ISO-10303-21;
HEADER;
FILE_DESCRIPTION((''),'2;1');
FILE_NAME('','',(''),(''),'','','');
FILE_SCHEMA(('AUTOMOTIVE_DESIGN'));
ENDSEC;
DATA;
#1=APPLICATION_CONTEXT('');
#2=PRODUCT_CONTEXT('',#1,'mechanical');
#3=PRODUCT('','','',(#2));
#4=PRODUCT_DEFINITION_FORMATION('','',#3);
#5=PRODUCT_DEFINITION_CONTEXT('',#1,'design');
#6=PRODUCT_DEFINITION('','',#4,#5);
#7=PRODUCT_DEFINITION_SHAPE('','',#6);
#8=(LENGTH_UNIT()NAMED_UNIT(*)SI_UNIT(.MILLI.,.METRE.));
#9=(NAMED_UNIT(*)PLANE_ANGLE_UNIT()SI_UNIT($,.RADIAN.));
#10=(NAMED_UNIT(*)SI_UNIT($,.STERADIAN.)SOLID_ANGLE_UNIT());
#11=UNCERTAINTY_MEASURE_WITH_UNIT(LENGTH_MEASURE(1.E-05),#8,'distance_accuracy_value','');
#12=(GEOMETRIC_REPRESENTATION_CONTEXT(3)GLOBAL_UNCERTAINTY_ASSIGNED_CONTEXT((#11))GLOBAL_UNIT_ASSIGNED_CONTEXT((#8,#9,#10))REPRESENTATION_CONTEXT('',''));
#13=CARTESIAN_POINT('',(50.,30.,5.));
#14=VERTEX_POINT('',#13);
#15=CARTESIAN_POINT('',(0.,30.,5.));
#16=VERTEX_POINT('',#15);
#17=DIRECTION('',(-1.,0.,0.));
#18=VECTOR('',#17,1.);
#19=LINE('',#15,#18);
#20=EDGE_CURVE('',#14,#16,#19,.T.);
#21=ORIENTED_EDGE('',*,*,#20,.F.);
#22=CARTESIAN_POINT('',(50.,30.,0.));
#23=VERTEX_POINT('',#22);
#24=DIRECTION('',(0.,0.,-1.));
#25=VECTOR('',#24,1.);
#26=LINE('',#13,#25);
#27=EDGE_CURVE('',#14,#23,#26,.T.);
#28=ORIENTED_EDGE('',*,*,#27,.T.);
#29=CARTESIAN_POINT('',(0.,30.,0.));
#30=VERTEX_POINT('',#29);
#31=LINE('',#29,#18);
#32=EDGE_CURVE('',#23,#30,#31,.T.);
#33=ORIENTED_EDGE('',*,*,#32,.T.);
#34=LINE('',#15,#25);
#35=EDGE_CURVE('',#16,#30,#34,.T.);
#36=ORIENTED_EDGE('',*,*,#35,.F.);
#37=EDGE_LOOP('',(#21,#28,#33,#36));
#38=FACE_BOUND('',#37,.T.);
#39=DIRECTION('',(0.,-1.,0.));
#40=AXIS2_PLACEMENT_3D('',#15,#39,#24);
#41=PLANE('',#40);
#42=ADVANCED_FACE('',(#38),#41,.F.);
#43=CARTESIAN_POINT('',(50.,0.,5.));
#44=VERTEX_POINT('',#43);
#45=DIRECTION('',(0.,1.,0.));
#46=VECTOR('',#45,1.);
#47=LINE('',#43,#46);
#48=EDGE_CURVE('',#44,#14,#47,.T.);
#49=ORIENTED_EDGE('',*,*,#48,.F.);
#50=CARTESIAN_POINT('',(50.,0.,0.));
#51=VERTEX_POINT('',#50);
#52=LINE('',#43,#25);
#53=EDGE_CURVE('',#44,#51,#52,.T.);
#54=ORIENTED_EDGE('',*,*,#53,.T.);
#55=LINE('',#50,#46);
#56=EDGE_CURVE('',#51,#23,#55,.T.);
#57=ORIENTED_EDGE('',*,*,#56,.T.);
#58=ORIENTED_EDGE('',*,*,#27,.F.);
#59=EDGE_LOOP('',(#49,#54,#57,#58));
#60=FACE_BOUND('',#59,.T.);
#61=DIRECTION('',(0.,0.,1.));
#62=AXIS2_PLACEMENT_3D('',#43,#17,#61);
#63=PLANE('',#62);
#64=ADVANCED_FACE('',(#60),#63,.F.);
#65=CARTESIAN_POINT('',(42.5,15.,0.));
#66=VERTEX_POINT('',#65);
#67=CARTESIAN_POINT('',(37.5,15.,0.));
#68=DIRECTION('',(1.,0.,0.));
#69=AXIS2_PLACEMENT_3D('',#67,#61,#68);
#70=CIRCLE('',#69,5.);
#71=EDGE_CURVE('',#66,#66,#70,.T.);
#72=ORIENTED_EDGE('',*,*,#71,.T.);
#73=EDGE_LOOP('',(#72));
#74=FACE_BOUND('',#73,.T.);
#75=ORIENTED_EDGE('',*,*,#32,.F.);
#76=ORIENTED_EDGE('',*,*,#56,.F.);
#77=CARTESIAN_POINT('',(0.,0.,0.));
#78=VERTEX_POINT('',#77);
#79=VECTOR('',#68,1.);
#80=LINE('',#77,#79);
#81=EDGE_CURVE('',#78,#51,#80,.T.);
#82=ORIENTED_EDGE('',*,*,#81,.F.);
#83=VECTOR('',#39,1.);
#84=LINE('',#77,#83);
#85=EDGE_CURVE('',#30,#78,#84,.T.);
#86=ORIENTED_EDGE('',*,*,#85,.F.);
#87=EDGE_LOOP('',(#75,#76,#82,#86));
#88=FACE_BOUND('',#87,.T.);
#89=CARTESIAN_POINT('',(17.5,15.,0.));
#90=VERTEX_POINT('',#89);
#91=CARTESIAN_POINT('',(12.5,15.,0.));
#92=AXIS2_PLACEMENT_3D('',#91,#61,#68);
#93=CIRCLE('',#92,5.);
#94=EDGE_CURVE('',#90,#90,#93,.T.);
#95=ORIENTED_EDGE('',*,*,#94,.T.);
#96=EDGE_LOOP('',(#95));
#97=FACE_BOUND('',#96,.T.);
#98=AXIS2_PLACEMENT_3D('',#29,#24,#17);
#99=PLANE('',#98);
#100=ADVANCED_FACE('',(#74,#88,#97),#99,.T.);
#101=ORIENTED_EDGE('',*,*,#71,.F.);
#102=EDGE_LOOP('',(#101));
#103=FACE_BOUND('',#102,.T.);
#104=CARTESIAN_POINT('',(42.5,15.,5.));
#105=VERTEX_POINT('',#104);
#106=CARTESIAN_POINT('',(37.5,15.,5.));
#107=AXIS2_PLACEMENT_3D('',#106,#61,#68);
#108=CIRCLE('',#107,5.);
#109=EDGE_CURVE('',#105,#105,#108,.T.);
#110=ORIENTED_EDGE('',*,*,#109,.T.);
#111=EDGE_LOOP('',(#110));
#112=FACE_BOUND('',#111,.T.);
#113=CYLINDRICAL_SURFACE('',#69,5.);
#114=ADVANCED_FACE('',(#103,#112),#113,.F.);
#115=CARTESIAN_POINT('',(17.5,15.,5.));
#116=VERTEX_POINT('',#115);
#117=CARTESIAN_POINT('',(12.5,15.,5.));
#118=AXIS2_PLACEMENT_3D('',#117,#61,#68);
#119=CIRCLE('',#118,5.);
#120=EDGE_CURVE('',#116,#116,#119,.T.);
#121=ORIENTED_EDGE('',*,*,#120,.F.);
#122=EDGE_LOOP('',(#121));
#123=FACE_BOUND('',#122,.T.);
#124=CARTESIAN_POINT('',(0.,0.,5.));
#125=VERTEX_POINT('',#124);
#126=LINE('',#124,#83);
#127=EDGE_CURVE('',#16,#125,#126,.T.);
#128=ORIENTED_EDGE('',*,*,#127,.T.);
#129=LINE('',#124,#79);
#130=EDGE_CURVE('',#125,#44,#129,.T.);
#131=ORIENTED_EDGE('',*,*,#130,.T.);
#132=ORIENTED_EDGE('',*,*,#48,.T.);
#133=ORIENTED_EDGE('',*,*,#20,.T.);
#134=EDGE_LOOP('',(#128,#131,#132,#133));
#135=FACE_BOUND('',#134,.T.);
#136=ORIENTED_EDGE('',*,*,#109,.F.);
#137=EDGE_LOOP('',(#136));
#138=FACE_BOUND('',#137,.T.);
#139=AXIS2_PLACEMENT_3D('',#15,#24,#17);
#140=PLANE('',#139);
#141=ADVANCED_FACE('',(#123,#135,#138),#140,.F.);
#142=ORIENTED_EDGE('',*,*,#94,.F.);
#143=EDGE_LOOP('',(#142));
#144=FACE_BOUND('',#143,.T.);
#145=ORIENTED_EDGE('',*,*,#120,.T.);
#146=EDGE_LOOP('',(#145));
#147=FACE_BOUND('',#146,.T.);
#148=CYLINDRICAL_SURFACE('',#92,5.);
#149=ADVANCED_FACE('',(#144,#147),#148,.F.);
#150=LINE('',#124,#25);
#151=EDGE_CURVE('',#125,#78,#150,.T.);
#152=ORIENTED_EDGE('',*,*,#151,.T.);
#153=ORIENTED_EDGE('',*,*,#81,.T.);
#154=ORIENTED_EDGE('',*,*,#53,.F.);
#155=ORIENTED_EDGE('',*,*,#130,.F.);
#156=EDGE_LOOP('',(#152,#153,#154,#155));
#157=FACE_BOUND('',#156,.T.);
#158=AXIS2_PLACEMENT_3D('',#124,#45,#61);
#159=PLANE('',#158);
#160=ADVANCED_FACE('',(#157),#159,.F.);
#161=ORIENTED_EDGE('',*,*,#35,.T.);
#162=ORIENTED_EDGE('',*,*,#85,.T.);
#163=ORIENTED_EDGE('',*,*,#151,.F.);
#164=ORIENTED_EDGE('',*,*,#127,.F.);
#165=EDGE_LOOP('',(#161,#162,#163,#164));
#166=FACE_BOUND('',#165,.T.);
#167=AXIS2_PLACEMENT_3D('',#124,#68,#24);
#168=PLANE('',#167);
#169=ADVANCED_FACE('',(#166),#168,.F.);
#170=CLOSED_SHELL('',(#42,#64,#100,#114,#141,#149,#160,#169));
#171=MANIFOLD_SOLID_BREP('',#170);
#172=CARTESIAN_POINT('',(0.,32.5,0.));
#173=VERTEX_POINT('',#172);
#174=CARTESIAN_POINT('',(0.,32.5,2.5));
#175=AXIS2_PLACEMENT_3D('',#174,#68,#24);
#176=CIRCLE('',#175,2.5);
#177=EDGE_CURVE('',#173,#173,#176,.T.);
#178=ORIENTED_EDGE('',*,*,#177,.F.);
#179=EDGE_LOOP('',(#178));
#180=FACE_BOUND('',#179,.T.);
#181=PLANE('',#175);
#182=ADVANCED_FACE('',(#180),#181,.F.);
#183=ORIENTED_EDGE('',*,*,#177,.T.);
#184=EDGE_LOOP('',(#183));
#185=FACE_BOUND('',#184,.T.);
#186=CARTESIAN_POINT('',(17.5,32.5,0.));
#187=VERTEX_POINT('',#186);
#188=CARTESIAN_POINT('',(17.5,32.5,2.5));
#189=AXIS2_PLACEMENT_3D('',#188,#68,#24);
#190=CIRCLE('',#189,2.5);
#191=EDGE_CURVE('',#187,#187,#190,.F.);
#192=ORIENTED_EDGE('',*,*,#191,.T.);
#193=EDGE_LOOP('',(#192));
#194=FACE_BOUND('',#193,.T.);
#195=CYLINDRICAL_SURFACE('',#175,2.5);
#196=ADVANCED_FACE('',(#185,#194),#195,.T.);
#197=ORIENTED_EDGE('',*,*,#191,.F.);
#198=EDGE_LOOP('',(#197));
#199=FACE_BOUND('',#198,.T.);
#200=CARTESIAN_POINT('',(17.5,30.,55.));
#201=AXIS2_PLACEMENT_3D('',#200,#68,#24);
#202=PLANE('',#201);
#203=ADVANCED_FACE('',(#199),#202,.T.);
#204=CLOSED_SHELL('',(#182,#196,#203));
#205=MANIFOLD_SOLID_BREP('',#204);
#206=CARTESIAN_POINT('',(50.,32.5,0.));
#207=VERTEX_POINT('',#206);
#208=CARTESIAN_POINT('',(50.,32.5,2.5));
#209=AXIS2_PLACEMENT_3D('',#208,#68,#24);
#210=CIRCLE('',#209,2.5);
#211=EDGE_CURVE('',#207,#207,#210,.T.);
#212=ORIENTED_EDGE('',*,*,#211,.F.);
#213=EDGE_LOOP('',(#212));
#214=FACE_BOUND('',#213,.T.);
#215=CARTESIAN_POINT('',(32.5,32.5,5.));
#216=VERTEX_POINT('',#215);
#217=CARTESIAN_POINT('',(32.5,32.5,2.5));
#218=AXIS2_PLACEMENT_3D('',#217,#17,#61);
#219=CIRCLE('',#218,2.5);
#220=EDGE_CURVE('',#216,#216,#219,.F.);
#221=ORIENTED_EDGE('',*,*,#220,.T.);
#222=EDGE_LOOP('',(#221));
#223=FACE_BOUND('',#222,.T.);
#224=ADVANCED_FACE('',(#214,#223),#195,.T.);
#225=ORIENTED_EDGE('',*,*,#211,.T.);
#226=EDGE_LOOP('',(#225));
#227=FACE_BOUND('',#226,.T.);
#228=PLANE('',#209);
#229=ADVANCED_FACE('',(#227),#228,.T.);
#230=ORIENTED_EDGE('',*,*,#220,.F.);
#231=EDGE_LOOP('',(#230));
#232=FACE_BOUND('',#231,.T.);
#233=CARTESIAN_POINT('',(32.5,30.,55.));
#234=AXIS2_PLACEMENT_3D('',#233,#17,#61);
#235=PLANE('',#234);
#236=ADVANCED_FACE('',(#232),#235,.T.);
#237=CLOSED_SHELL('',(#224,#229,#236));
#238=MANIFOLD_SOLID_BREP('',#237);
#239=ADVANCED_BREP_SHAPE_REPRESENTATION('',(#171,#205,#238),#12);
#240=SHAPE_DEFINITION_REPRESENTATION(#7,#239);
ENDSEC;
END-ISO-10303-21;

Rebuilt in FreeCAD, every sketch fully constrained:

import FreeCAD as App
import Part
import Sketcher

V = App.Vector


def add_polygon(sketch, points):
    """Adds a closed chain of lines whose ends are joined by coincident constraints."""
    first, n = sketch.GeometryCount, len(points)
    for a, b in zip(points, points[1:] + points[:1]):
        sketch.addGeometry(Part.LineSegment(App.Vector(*a, 0), App.Vector(*b, 0)), False)
    for i in range(n):
        sketch.addConstraint(Sketcher.Constraint("Coincident", first + i, 2, first + (i + 1) % n, 1))

doc = App.newDocument("Part")
body = doc.addObject("PartDesign::Body", "Body")

# Sketch on XY plane
sketch1 = body.newObject("Sketcher::SketchObject", "Sketch")
sketch1.AttachmentSupport = (doc.getObject("XY_Plane"), [""])
sketch1.MapMode = "FlatFace"
add_polygon(sketch1, [(0, 30), (0, 0), (50, 0), (50, 30)])  # lines 0-3
sketch1.addConstraint(Sketcher.Constraint("Vertical", 0))
sketch1.addConstraint(Sketcher.Constraint("Horizontal", 1))
sketch1.addConstraint(Sketcher.Constraint("Vertical", 2))
sketch1.addConstraint(Sketcher.Constraint("Horizontal", 3))
sketch1.addConstraint(Sketcher.Constraint("Coincident", 0, 2, -1, 1))
sketch1.addConstraint(Sketcher.Constraint("DistanceX", 1, 1, 1, 2, 50.0))
sketch1.addConstraint(Sketcher.Constraint("DistanceY", 0, 2, 0, 1, 30.0))
pad1 = body.newObject("PartDesign::Pad", "Pad")
pad1.Profile = sketch1
pad1.Length = 5

# Sketch on XY plane
sketch2 = body.newObject("Sketcher::SketchObject", "Sketch001")
sketch2.AttachmentSupport = (doc.getObject("XY_Plane"), [""])
sketch2.MapMode = "FlatFace"
sketch2.AttachmentOffset = App.Placement(V(0, 0, 5), App.Rotation())
sketch2.addGeometry(Part.Circle(V(12, 15, 0), V(0, 0, 1), 5), False)
sketch2.addGeometry(Part.Circle(V(38, 15, 0), V(0, 0, 1), 5), False)
sketch2.addConstraint(Sketcher.Constraint("Equal", 0, 1))
sketch2.addConstraint(Sketcher.Constraint("Horizontal", 0, 3, 1, 3))
sketch2.addConstraint(Sketcher.Constraint("Diameter", 0, 10.0))
sketch2.addConstraint(Sketcher.Constraint("DistanceY", -1, 1, 0, 3, 15.0))
sketch2.addConstraint(Sketcher.Constraint("DistanceX", 0, 3, 1, 3, 25.0))
sketch2.addConstraint(Sketcher.Constraint("DistanceX", -1, 1, 0, 3, 12.5))
pocket1 = body.newObject("PartDesign::Pocket", "Pocket")
pocket1.Profile = sketch2
pocket1.Type = "ThroughAll"
body2 = doc.addObject("PartDesign::Body", "Body001")
body2.AllowCompound = True

# Sketch on YZ plane
sketch3 = body2.newObject("Sketcher::SketchObject", "Sketch002")
sketch3.AttachmentSupport = (doc.getObject("YZ_Plane001"), [""])
sketch3.MapMode = "FlatFace"
sketch3.AttachmentOffset = App.Placement(V(0, 0, 50), App.Rotation())
sketch3.addGeometry(Part.Circle(V(32.5, 2.5, 0), V(0, 0, 1), 2.5), False)
sketch3.addConstraint(Sketcher.Constraint("Diameter", 0, 5.0))
sketch3.addConstraint(Sketcher.Constraint("DistanceX", -1, 1, 0, 3, 32.5))
sketch3.addConstraint(Sketcher.Constraint("DistanceY", -1, 1, 0, 3, 2.5))
pad2 = body2.newObject("PartDesign::Pad", "Pad001")
pad2.Profile = sketch3
pad2.Length = 50
pad2.Reversed = True

# Sketch on XY plane
sketch4 = body2.newObject("Sketcher::SketchObject", "Sketch003")
sketch4.AttachmentSupport = (doc.getObject("XY_Plane001"), [""])
sketch4.MapMode = "FlatFace"
sketch4.AttachmentOffset = App.Placement(V(0, 0, 5), App.Rotation())
add_polygon(sketch4, [(18, 35), (18, 30), (32, 30), (32, 35)])  # lines 0-3
sketch4.addConstraint(Sketcher.Constraint("Vertical", 0))
sketch4.addConstraint(Sketcher.Constraint("Horizontal", 1))
sketch4.addConstraint(Sketcher.Constraint("Vertical", 2))
sketch4.addConstraint(Sketcher.Constraint("Horizontal", 3))
sketch4.addConstraint(Sketcher.Constraint("DistanceX", 1, 1, 1, 2, 15.0))
sketch4.addConstraint(Sketcher.Constraint("DistanceY", 0, 2, 0, 1, 5.0))
sketch4.addConstraint(Sketcher.Constraint("DistanceY", -1, 1, 0, 2, 30.0))
sketch4.addConstraint(Sketcher.Constraint("DistanceX", -1, 1, 0, 2, 17.5))
pocket2 = body2.newObject("PartDesign::Pocket", "Pocket001")
pocket2.Profile = sketch4
pocket2.Type = "ThroughAll"
pocket2.Midplane = True

doc.recompute()
